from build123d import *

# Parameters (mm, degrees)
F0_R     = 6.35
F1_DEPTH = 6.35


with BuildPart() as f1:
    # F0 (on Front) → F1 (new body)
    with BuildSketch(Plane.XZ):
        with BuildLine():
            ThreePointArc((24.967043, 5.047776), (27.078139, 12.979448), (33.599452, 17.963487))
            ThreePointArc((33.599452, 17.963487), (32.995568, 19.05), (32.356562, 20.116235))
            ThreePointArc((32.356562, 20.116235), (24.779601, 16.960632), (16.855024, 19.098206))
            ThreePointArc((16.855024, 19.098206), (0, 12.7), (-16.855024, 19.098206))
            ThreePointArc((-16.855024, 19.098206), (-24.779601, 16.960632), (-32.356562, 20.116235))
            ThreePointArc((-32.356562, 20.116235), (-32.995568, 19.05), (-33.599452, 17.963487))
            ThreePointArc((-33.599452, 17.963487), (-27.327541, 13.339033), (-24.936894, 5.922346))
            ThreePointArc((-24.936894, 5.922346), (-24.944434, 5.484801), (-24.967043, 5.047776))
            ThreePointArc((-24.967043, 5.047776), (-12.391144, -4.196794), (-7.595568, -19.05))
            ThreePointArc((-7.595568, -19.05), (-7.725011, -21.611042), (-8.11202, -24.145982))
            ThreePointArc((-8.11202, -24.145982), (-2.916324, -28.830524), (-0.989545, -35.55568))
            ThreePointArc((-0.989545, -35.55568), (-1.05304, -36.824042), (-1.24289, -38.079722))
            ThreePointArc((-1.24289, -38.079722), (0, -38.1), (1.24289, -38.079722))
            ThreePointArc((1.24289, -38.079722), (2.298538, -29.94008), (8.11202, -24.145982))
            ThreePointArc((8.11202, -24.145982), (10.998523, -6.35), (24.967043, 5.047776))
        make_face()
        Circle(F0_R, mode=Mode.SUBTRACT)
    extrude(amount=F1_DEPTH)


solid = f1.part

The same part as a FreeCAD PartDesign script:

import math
import FreeCAD as App
import Part
import Sketcher

V = App.Vector
Q = App.Units.Quantity

doc = App.newDocument("Part")
body = doc.addObject("PartDesign::Body", "Body")

# Sketch on XZ plane
sketch1 = body.newObject("Sketcher::SketchObject", "Sketch")
sketch1.AttachmentSupport = (doc.getObject("XZ_Plane"), [""])
sketch1.MapMode = "FlatFace"
sketch1.addGeometry([
    Part.ArcOfCircle(Part.Circle(V(37.636896, 5.922345, 0), V(0, 0, 1), 12.700002), math.radians(108.536512), math.radians(183.948726)),  # 0
    Part.ArcOfCircle(Part.Circle(V(-0.000421, -0.000249, 0), V(0, 0, 1), 38.100489), math.radians(28.130609), math.radians(31.869405)),  # 1
    Part.ArcOfCircle(Part.Circle(V(23.94735, 29.633334, 0), V(0, 0, 1), 12.7), math.radians(-123.948734), math.radians(-48.536512)),  # 2
    Part.ArcOfCircle(Part.Circle(V(0, 38.100001, 0), V(0, 0, 1), 25.400001), math.radians(-131.573755), math.radians(-48.426245)),  # 3
    Part.ArcOfCircle(Part.Circle(V(-23.94735, 29.633334, 0), V(0, 0, 1), 12.7), math.radians(-131.463488), math.radians(-56.051266)),  # 4
    Part.ArcOfCircle(Part.Circle(V(0.000421, -0.000249, 0), V(0, 0, 1), 38.100489), math.radians(148.130595), math.radians(151.869391)),  # 5
    Part.ArcOfCircle(Part.Circle(V(-37.636895, 5.922346, 0), V(0, 0, 1), 12.700001), math.radians(-0.000001), math.radians(71.463492)),  # 6
    Part.ArcOfCircle(Part.Circle(V(-37.637692, 5.922375, 0), V(0, 0, 1), 12.700798), math.radians(-3.948613), math.radians(-0.000132)),  # 7
    Part.ArcOfCircle(Part.Circle(V(-32.995568, -19.049999, 0), V(0, 0, 1), 25.4), math.radians(-0.000001), math.radians(71.573755)),  # 8
    Part.ArcOfCircle(Part.Circle(V(-32.995605, -19.049996, 0), V(0, 0, 1), 25.400037), math.radians(-11.573749), math.radians(-0.00001)),  # 9
    Part.ArcOfCircle(Part.Circle(V(-13.689541, -35.555678, 0), V(0, 0, 1), 12.699996), math.radians(-0.00001), math.radians(63.948744)),  # 10
    Part.ArcOfCircle(Part.Circle(V(-13.689573, -35.555679, 0), V(0, 0, 1), 12.700028), math.radians(-11.463469), math.radians(-0.000005)),  # 11
    Part.ArcOfCircle(Part.Circle(V(0, 0.000078, 0), V(0, 0, 1), 38.100078), math.radians(-91.869418), math.radians(-88.130582)),  # 12
    Part.ArcOfCircle(Part.Circle(V(13.689544, -35.55568, 0), V(0, 0, 1), 12.7), math.radians(116.051265), math.radians(191.463489)),  # 13
    Part.ArcOfCircle(Part.Circle(V(32.995569, -19.05, 0), V(0, 0, 1), 25.400001), math.radians(108.426248), math.radians(191.573755)),  # 14
    Part.Circle(V(0, 0, 0), V(0, 0, 1), 6.35),  # 15
], False)
sketch1.addConstraint([
    Sketcher.Constraint("Coincident", 0, 1, 1, 1),
    Sketcher.Constraint("Coincident", 1, 2, 2, 2),
    Sketcher.Constraint("Coincident", 2, 1, 3, 2),
    Sketcher.Constraint("Coincident", 3, 1, 4, 2),
    Sketcher.Constraint("Coincident", 4, 1, 5, 1),
    Sketcher.Constraint("Coincident", 5, 2, 6, 2),
    Sketcher.Constraint("Coincident", 6, 1, 7, 2),
    Sketcher.Constraint("Coincident", 7, 1, 8, 2),
    Sketcher.Constraint("Coincident", 8, 1, 9, 2),
    Sketcher.Constraint("Coincident", 9, 1, 10, 2),
    Sketcher.Constraint("Coincident", 10, 1, 11, 2),
    Sketcher.Constraint("Coincident", 11, 1, 12, 1),
    Sketcher.Constraint("Coincident", 12, 2, 13, 2),
    Sketcher.Constraint("Coincident", 13, 1, 14, 2),
    Sketcher.Constraint("Coincident", 14, 1, 0, 2),
    Sketcher.Constraint("Coincident", 15, 3, -1, 1),
    Sketcher.Constraint("PointOnObject", 3, 3, -2),
    Sketcher.Constraint("PointOnObject", 12, 3, -2),
    Sketcher.Constraint("Radius", 3, Q("1 in")),
    Sketcher.Constraint("Radius", 8, Q("1 in")),
    Sketcher.Constraint("Radius", 14, Q("1 in")),
    Sketcher.Constraint("Diameter", 15, Q("0.5 in")),
    Sketcher.Constraint("Radius", 0, Q("0.5000001 in")),
    Sketcher.Constraint("Radius", 2, Q("0.5 in")),
    Sketcher.Constraint("Radius", 4, Q("0.5 in")),
    Sketcher.Constraint("Radius", 6, Q("0.5 in")),
    Sketcher.Constraint("Radius", 10, Q("0.4999998 in")),
    Sketcher.Constraint("Radius", 13, Q("0.5 in")),
    Sketcher.Constraint("DistanceY", -1, 1, 3, 3, Q("1.5 in")),
    Sketcher.Constraint("DistanceY", 8, 3, -1, 1, Q("0.75 in")),
    Sketcher.Constraint("DistanceY", 9, 3, -1, 1, Q("0.7499998 in")),
    Sketcher.Constraint("DistanceY", 14, 3, -1, 1, Q("0.75 in")),
    Sketcher.Constraint("DistanceY", 8, 1, -1, 1, Q("0.75 in")),
    Sketcher.Constraint("Radius", 7, Q("12.700798 mm")),
    Sketcher.Constraint("Radius", 1, Q("38.100489 mm")),
    Sketcher.Constraint("Radius", 5, Q("38.100489 mm")),
    Sketcher.Constraint("Radius", 11, Q("12.700028 mm")),
    Sketcher.Constraint("Radius", 9, Q("25.400037 mm")),
    Sketcher.Constraint("Radius", 12, Q("38.100078 mm")),
    Sketcher.Constraint("DistanceX", 4, 3, 2, 3, Q("47.894701 mm")),
    Sketcher.Constraint("DistanceX", 2, 3, 0, 1, Q("9.652102 mm")),
    Sketcher.Constraint("DistanceY", 1, 2, 2, 3, Q("9.517099 mm")),
    Sketcher.Constraint("DistanceY", 4, 1, 4, 3, Q("9.517099 mm")),
    Sketcher.Constraint("DistanceX", 5, 2, 4, 3, Q("9.652102 mm")),
    Sketcher.Constraint("DistanceY", 7, 1, 7, 3, Q("0.874599 mm")),
    Sketcher.Constraint("DistanceY", 13, 3, 9, 1, Q("11.409698 mm")),
    Sketcher.Constraint("DistanceY", 13, 3, 13, 1, Q("11.409698 mm")),
    Sketcher.Constraint("DistanceY", 10, 1, 13, 1, Q("11.409698 mm")),
    Sketcher.Constraint("DistanceX", 1, 3, -1, 1, Q("0.000421 mm")),
    Sketcher.Constraint("DistanceY", 1, 3, -1, 1, Q("0.000249 mm")),
    Sketcher.Constraint("DistanceX", -1, 1, 2, 3, Q("23.94735 mm")),
    Sketcher.Constraint("DistanceX", -1, 1, 5, 3, Q("0.000421 mm")),
    Sketcher.Constraint("DistanceY", 5, 3, -1, 1, Q("0.000249 mm")),
    Sketcher.Constraint("DistanceX", 10, 3, -1, 1, Q("13.689541 mm")),
    Sketcher.Constraint("DistanceY", 11, 3, -1, 1, Q("35.555679 mm")),
    Sketcher.Constraint("DistanceY", 13, 3, -1, 1, Q("35.55568 mm")),
    Sketcher.Constraint("DistanceX", -1, 1, 14, 3, Q("32.995569 mm")),
    Sketcher.Constraint("DistanceX", 8, 1, -1, 1, Q("7.595568 mm")),
    Sketcher.Constraint("DistanceX", 11, 1, -1, 1, Q("1.24289 mm")),
    Sketcher.Constraint("DistanceY", 0, 3, 2, 3, Q("23.710988 mm")),
    Sketcher.Constraint("DistanceX", 7, 3, 4, 3, Q("13.690342 mm")),
    Sketcher.Constraint("DistanceY", 6, 1, 5, 2, Q("12.041141 mm")),
])
pad1 = body.newObject("PartDesign::Pad", "Pad")
pad1.Profile = sketch1
pad1.Length = Q("0.25 in")

doc.recompute()
